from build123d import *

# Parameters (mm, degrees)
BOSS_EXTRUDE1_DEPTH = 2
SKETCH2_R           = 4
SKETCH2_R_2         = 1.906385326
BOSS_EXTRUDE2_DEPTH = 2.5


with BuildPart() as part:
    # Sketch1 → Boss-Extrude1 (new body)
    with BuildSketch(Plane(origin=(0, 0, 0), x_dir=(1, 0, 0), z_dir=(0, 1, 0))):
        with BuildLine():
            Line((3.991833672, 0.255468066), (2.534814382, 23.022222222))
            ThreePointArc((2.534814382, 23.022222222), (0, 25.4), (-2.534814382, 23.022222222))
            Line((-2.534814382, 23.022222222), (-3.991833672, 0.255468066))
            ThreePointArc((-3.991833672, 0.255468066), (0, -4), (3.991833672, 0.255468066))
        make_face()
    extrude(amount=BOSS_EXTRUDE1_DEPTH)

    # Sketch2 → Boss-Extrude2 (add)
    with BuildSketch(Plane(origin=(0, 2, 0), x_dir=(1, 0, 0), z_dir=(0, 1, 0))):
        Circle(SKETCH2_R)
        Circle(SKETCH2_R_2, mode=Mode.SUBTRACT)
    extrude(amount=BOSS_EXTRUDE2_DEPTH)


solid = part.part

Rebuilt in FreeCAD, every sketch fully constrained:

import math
import FreeCAD as App
import Part
import Sketcher

doc = App.newDocument("Part")
params = doc.addObject("Spreadsheet::Sheet", "Params")
for row, (alias, value) in enumerate([
    ("sketch1_radius", "4 mm"),
    ("sketch1_radius2", "2.54 mm"),
    ("pad1_length", "2 mm"),
    ("sketch2_diameter", "8 mm"),
    ("pad2_length", "2.5 mm"),
], start=1):
    params.set(f"A{row}", alias)
    params.set(f"B{row}", "=" + value)
    params.setAlias(f"B{row}", alias)

body = doc.addObject("PartDesign::Body", "Body")

# Sketch on XZ plane
sketch1 = doc.addObject("Sketcher::SketchObject", "Sketch")
body.addObject(sketch1)
sketch1.AttachmentSupport = (doc.XZ_Plane, [""])
sketch1.MapMode = "FlatFace"
sketch1.addGeometry([
    Part.LineSegment(App.Vector(3.991834, -0.255468, 0), App.Vector(2.534814, -23.022222, 0)),
    Part.ArcOfCircle(Part.Circle(App.Vector(0, -22.86, 0), App.Vector(0, 0, 1), 2.54), math.radians(-176.338197), math.radians(-3.661803)),
    Part.LineSegment(App.Vector(-2.534814, -23.022222, 0), App.Vector(-3.991834, -0.255468, 0)),
    Part.ArcOfCircle(Part.Circle(App.Vector(0, 0, 0), App.Vector(0, 0, 1), 4), math.radians(-3.661803), math.radians(183.661803)),
], False)
sketch1.addConstraint([
    Sketcher.Constraint("Tangent", 0, 2, 1, 2),
    Sketcher.Constraint("Tangent", 1, 1, 2, 1),
    Sketcher.Constraint("Tangent", 2, 2, 3, 2),
    Sketcher.Constraint("Tangent", 3, 1, 0, 1),
    Sketcher.Constraint("Coincident", 3, 3, -1, 1),
    Sketcher.Constraint("PointOnObject", 1, 3, -2),
    Sketcher.Constraint("Radius", 3, 4.0),
    Sketcher.Constraint("Radius", 1, 2.54),
    Sketcher.Constraint("DistanceY", 1, 3, -1, 1, 22.86),
])
sketch1.setExpression("Constraints[6]", "Params.sketch1_radius")
sketch1.setExpression("Constraints[7]", "Params.sketch1_radius2")
pad1 = doc.addObject("PartDesign::Pad", "Pad")
body.addObject(pad1)
pad1.Profile = sketch1
pad1.setExpression("Length", "Params.pad1_length")
pad1.Reversed = True

# Sketch on XZ plane
sketch2 = doc.addObject("Sketcher::SketchObject", "Sketch001")
body.addObject(sketch2)
sketch2.AttachmentSupport = (doc.XZ_Plane, [""])
sketch2.MapMode = "FlatFace"
sketch2.AttachmentOffset = App.Placement(App.Vector(0, 0, -2), App.Rotation())
sketch2.addGeometry([
    Part.Circle(App.Vector(0, 0, 0), App.Vector(0, 0, 1), 4),
    Part.Circle(App.Vector(0, 0, 0), App.Vector(0, 0, 1), 1.906385),
], False)
sketch2.addConstraint([
    Sketcher.Constraint("Coincident", 0, 3, -1, 1),
    Sketcher.Constraint("Coincident", 1, 3, -1, 1),
    Sketcher.Constraint("Diameter", 0, 8.0),
    Sketcher.Constraint("Diameter", 1, 3.812771),
])
sketch2.setExpression("Constraints[2]", "Params.sketch2_diameter")
pad2 = doc.addObject("PartDesign::Pad", "Pad001")
body.addObject(pad2)
pad2.Profile = sketch2
pad2.setExpression("Length", "Params.pad2_length")
pad2.Reversed = True

doc.recompute()
